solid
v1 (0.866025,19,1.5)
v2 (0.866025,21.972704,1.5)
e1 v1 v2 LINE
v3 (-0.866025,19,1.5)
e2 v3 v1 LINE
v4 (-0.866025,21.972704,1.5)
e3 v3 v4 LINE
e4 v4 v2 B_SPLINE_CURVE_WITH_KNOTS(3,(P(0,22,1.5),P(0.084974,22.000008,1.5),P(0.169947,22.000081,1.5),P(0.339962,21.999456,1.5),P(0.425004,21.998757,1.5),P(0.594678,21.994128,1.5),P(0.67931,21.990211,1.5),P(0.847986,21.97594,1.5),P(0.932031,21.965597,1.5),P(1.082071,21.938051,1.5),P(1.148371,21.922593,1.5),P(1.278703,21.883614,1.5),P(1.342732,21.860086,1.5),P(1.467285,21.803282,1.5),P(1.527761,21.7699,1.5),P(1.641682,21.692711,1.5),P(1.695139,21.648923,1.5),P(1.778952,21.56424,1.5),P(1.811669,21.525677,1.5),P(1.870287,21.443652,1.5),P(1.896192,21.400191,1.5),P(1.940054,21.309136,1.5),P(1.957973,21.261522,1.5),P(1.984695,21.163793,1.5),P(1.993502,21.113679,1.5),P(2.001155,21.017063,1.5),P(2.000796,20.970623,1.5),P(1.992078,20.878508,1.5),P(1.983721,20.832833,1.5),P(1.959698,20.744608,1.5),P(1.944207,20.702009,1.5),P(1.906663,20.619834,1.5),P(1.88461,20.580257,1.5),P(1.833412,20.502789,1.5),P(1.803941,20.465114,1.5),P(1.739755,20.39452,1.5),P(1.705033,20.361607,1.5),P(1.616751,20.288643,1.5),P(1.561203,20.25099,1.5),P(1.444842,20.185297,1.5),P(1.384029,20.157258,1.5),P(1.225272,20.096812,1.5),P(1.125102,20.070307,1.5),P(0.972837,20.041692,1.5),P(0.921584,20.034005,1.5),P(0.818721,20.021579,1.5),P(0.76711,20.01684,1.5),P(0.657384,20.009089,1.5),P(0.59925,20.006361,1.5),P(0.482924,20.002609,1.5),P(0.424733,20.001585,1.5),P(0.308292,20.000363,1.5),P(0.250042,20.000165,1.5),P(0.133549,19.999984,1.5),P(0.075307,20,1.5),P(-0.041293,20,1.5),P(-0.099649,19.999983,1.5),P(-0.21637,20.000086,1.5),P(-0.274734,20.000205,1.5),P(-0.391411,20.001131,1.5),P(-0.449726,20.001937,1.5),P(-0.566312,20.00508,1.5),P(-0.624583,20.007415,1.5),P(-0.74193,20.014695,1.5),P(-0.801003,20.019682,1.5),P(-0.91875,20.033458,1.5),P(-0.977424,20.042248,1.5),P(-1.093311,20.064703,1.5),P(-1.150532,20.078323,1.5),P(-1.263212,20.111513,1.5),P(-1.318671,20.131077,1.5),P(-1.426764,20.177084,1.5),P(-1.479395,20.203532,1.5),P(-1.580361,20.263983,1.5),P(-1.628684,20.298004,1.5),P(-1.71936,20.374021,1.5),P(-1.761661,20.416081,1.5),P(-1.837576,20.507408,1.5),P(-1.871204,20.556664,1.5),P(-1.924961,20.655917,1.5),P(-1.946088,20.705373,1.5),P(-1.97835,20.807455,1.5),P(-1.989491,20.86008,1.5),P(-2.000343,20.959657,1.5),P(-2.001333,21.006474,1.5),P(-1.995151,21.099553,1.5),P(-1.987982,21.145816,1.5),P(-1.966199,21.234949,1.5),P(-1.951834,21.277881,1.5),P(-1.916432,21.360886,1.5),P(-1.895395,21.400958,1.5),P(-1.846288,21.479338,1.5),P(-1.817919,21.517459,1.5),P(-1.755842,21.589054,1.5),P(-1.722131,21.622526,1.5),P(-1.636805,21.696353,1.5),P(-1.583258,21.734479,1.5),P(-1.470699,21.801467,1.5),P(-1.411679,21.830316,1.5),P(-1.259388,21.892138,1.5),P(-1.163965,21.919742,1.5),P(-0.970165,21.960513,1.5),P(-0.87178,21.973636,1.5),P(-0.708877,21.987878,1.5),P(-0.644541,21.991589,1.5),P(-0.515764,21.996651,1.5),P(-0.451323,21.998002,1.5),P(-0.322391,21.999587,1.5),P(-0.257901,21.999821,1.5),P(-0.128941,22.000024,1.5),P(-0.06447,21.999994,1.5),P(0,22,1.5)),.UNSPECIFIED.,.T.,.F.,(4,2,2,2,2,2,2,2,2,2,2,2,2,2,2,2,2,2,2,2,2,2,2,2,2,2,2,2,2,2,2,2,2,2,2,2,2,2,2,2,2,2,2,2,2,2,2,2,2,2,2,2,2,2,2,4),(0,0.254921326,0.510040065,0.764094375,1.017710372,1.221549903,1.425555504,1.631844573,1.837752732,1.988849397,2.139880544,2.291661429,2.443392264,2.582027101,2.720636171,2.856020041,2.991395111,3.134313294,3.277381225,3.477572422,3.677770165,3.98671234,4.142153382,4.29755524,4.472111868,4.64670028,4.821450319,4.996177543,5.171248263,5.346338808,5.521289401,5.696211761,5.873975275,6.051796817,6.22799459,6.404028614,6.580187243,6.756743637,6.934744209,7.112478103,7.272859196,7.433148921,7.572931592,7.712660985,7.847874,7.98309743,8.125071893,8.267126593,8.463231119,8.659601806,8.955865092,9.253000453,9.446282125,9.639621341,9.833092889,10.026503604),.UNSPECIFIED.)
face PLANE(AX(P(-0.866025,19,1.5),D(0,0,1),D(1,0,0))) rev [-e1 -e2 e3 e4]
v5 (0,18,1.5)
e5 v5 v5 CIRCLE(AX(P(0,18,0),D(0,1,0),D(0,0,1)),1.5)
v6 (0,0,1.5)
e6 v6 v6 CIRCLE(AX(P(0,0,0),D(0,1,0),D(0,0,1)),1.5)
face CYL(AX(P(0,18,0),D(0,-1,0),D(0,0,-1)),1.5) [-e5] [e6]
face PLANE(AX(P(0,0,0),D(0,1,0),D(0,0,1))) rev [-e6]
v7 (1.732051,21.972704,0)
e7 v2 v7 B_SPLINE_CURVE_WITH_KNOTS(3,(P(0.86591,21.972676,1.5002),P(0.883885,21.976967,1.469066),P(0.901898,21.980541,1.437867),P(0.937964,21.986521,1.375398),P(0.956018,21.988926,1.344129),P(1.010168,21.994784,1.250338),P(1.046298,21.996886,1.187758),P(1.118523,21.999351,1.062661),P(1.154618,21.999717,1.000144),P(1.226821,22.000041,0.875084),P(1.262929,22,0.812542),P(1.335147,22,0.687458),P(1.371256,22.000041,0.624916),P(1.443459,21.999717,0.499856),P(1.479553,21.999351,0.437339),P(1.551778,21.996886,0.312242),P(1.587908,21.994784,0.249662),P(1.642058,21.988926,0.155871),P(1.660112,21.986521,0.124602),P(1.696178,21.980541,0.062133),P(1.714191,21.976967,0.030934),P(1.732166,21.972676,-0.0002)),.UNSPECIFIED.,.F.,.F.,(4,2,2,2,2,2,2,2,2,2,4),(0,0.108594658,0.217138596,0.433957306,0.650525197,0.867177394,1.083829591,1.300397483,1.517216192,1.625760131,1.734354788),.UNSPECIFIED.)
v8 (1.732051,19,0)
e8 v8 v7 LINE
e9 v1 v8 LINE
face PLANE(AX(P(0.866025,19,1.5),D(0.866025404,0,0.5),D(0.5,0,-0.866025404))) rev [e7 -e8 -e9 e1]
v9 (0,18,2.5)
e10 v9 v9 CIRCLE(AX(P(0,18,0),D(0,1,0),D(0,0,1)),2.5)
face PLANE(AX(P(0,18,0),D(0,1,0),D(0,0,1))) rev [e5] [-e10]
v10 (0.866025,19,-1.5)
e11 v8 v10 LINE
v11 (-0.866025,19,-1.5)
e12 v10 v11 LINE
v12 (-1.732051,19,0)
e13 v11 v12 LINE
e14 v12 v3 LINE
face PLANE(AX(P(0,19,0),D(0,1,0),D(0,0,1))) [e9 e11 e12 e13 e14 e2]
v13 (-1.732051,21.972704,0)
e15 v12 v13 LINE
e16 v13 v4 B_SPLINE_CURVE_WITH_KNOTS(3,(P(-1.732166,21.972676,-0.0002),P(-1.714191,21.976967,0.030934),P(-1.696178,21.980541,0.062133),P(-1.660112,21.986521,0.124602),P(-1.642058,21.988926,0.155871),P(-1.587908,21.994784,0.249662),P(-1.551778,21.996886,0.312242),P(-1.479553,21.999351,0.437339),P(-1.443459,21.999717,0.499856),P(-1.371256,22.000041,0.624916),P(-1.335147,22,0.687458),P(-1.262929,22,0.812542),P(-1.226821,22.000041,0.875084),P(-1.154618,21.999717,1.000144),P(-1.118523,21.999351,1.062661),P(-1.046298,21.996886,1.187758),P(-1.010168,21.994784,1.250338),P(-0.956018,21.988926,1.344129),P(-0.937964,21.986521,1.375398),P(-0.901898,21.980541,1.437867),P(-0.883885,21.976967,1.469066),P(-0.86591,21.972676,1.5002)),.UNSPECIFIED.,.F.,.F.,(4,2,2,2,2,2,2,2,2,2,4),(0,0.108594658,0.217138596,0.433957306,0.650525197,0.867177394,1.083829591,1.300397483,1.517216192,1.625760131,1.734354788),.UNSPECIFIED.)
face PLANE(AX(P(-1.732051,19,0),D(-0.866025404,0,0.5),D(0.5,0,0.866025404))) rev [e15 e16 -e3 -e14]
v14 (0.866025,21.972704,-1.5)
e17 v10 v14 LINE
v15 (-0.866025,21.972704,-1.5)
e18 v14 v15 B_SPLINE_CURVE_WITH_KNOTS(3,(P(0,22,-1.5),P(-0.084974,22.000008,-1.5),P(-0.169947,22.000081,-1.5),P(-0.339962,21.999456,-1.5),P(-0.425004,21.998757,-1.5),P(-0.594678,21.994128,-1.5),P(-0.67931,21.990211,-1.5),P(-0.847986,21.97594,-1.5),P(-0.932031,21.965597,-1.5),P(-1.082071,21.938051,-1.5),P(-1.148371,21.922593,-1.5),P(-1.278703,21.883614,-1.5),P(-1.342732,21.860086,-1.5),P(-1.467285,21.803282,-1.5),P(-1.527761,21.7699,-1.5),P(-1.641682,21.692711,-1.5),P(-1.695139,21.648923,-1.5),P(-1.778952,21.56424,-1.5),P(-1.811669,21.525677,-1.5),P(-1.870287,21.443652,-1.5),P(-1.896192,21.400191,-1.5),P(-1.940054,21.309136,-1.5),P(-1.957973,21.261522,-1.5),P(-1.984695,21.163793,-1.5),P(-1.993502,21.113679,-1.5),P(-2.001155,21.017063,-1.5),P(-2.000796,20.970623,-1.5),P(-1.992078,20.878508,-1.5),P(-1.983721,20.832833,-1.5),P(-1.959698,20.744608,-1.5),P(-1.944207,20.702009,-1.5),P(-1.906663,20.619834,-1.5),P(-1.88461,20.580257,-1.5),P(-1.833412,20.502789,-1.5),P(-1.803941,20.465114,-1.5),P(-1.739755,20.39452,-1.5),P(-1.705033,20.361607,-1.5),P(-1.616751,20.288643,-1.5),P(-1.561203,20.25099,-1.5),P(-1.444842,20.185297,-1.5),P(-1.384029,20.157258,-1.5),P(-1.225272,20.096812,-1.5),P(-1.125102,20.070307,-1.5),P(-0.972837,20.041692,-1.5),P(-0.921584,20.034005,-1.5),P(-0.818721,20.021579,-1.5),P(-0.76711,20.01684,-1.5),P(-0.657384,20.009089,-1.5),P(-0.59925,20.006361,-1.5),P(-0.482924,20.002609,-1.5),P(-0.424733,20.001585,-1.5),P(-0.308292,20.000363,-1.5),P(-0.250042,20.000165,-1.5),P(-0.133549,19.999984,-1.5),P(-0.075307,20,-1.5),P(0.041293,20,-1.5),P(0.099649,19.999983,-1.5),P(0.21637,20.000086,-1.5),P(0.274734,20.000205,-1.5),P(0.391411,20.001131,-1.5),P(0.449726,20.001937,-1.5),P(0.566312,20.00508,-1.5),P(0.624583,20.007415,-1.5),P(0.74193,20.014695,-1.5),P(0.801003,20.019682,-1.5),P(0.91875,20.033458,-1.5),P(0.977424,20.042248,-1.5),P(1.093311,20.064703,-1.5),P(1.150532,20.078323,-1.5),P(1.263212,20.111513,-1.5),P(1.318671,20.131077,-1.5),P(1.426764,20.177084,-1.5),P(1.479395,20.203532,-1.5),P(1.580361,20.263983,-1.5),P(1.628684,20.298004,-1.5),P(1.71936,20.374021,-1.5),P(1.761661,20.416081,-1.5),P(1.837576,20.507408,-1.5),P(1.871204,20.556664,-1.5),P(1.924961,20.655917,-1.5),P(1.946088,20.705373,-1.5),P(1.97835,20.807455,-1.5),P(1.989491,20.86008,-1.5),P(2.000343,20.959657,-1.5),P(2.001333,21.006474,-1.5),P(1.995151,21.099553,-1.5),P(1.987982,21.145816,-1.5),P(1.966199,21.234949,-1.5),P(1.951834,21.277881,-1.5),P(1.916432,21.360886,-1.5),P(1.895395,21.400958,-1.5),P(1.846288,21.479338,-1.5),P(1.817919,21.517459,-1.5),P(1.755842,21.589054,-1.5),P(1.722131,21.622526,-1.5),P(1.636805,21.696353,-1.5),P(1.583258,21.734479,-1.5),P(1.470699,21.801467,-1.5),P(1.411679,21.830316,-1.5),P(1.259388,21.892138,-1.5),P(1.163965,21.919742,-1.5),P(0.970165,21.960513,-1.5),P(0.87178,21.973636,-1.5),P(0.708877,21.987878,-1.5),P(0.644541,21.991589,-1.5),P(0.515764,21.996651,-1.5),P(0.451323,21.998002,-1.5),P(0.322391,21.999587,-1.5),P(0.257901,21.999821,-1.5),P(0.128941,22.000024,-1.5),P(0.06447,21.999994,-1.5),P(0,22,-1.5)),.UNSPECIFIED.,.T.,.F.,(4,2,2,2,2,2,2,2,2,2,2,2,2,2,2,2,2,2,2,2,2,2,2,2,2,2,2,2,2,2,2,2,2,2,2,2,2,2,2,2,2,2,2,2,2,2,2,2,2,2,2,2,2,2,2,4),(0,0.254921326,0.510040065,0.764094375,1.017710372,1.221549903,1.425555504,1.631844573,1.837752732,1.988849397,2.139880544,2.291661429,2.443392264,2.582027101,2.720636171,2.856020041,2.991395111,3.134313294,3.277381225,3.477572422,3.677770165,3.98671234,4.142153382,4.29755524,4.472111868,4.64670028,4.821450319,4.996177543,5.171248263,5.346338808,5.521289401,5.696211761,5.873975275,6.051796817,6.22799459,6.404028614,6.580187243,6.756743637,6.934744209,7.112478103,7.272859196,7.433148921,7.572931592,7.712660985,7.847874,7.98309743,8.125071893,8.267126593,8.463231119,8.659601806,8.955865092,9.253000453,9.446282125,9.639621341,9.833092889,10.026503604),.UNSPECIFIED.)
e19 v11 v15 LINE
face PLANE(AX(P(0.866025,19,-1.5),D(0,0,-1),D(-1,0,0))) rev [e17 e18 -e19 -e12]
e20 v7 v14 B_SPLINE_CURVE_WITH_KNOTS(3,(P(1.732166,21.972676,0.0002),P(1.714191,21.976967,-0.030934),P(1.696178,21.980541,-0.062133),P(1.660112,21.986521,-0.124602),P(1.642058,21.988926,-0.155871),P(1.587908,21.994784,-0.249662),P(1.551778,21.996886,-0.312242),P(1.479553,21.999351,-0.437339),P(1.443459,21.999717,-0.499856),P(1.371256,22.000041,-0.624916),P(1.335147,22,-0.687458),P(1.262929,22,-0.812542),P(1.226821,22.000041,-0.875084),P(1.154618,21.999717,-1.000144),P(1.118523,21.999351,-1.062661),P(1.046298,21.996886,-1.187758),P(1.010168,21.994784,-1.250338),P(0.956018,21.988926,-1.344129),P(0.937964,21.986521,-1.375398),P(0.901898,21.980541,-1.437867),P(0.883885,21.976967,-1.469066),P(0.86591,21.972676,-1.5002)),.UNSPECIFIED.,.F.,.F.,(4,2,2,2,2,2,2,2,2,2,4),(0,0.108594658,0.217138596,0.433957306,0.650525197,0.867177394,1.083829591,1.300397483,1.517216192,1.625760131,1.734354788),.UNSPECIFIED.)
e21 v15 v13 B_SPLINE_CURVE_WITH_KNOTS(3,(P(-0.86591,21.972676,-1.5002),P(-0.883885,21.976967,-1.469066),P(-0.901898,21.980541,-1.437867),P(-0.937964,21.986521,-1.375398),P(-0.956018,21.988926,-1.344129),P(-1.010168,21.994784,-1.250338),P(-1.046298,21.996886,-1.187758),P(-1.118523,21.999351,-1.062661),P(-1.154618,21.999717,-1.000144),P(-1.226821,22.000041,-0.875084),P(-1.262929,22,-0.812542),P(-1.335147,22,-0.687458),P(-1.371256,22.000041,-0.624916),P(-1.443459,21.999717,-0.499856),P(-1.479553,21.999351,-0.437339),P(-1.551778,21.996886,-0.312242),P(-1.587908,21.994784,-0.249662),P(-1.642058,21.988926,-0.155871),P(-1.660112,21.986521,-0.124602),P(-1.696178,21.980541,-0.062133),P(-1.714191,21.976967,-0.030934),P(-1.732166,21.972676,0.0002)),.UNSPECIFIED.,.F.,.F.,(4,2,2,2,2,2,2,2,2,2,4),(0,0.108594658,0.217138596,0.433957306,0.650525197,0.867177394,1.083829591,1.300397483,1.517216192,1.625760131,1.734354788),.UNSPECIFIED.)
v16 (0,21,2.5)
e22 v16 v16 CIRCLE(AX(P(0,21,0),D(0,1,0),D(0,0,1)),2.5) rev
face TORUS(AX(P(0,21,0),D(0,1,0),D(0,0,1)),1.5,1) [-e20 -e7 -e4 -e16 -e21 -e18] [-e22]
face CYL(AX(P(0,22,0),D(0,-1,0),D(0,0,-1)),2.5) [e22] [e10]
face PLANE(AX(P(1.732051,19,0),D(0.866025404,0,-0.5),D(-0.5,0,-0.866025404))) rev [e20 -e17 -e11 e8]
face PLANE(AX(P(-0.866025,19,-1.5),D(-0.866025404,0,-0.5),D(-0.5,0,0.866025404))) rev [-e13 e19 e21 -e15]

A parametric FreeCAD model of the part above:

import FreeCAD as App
import Part
import Sketcher
Q = App.Units.Quantity


def edges_at(feature, points):
    """Names of the edges that pass closest to the given points."""
    edges = feature.Shape.Edges
    near = lambda p: min(range(len(edges)), key=lambda i: edges[i].distToShape(Part.Vertex(*p))[0])
    return sorted({f"Edge{near(p) + 1}" for p in points})

doc = App.newDocument("Part")
params = doc.addObject("Spreadsheet::Sheet", "Params")
for row, (alias, value) in enumerate([
    ("sketch1_diameter", "3 mm"),
    ("pad1_length", "18 mm"),
    ("sketch2_diameter", "5 mm"),
    ("pad2_length", "4 mm"),
    ("fillet_radius", "1 mm"),
    ("pocket1_length", "3 mm"),
], start=1):
    params.set(f"A{row}", alias)
    params.set(f"B{row}", "=" + value)
    params.setAlias(f"B{row}", alias)

body = doc.addObject("PartDesign::Body", "Body")

sketch1 = doc.addObject("Sketcher::SketchObject", "Sketch")
body.addObject(sketch1)
sketch1.AttachmentSupport = (doc.XZ_Plane, [""])
sketch1.MapMode = "FlatFace"
sketch1.addGeometry(Part.Circle(App.Vector(0, 0, 0), App.Vector(0, 0, 1), 1.5), False)
sketch1.addConstraint(Sketcher.Constraint("Coincident", 0, 3, -1, 1))
sketch1.addConstraint(Sketcher.Constraint("Diameter", 0, Q("3 mm")))
sketch1.setExpression("Constraints[1]", "Params.sketch1_diameter")
pad1 = doc.addObject("PartDesign::Pad", "Pad")
body.addObject(pad1)
pad1.Profile = sketch1
pad1.setExpression("Length", "Params.pad1_length")
pad1.Reversed = True

sketch2 = doc.addObject("Sketcher::SketchObject", "Sketch001")
body.addObject(sketch2)
sketch2.AttachmentSupport = (doc.XZ_Plane, [""])
sketch2.MapMode = "FlatFace"
sketch2.AttachmentOffset = App.Placement(App.Vector(0, 0, -18), App.Rotation())
sketch2.addGeometry(Part.Circle(App.Vector(0, 0, 0), App.Vector(0, 0, 1), 2.5), False)
sketch2.addConstraint(Sketcher.Constraint("Coincident", 0, 3, -1, 1))
sketch2.addConstraint(Sketcher.Constraint("Diameter", 0, Q("5 mm")))
sketch2.setExpression("Constraints[1]", "Params.sketch2_diameter")
pad2 = doc.addObject("PartDesign::Pad", "Pad001")
body.addObject(pad2)
pad2.Profile = sketch2
pad2.setExpression("Length", "Params.pad2_length")
pad2.Reversed = True
doc.recompute()

fillet = doc.addObject("PartDesign::Fillet", "Fillet")
body.addObject(fillet)
fillet.Base = (pad2, edges_at(pad2, [(0, 22, -2.5)]))
fillet.setExpression("Radius", "Params.fillet_radius")

sketch3 = doc.addObject("Sketcher::SketchObject", "Sketch002")
body.addObject(sketch3)
sketch3.AttachmentSupport = (doc.XZ_Plane, [""])
sketch3.MapMode = "FlatFace"
sketch3.AttachmentOffset = App.Placement(App.Vector(0, 0, -22), App.Rotation())
sketch3.addGeometry(Part.LineSegment(App.Vector(1.732051, 0, 0), App.Vector(0.866025, -1.5, 0)), False)
sketch3.addGeometry(Part.LineSegment(App.Vector(0.866025, -1.5, 0), App.Vector(-0.866025, -1.5, 0)), False)
sketch3.addGeometry(Part.LineSegment(App.Vector(-0.866025, -1.5, 0), App.Vector(-1.732051, 0, 0)), False)
sketch3.addGeometry(Part.LineSegment(App.Vector(-1.732051, 0, 0), App.Vector(-0.866025, 1.5, 0)), False)
sketch3.addGeometry(Part.LineSegment(App.Vector(-0.866025, 1.5, 0), App.Vector(0.866025, 1.5, 0)), False)
sketch3.addGeometry(Part.LineSegment(App.Vector(0.866025, 1.5, 0), App.Vector(1.732051, 0, 0)), False)
sketch3.addConstraint(Sketcher.Constraint("Coincident", 0, 2, 1, 1))
sketch3.addConstraint(Sketcher.Constraint("Coincident", 1, 2, 2, 1))
sketch3.addConstraint(Sketcher.Constraint("Coincident", 2, 2, 3, 1))
sketch3.addConstraint(Sketcher.Constraint("Coincident", 3, 2, 4, 1))
sketch3.addConstraint(Sketcher.Constraint("Coincident", 4, 2, 5, 1))
sketch3.addConstraint(Sketcher.Constraint("Coincident", 5, 2, 0, 1))
sketch3.addConstraint(Sketcher.Constraint("Horizontal", 1))
sketch3.addConstraint(Sketcher.Constraint("Horizontal", 4))
sketch3.addConstraint(Sketcher.Constraint("Symmetric", 0, 2, 3, 2, -1, 1))
sketch3.addConstraint(Sketcher.Constraint("Symmetric", 2, 2, 5, 2, -1, 1))
sketch3.addConstraint(Sketcher.Constraint("PointOnObject", 2, 2, -1))
sketch3.addConstraint(Sketcher.Constraint("Parallel", 2, 5))
sketch3.addConstraint(Sketcher.Constraint("Vertical", 1, 2, 3, 2))
sketch3.addConstraint(Sketcher.Constraint("Angle", 0, Q("-120 deg")))
sketch3.addConstraint(Sketcher.Constraint("DistanceY", 1, 2, 3, 2, Q("3 mm")))
sketch3.addConstraint(Sketcher.Constraint("DistanceX", 1, 2, 1, 1, Q("1.732051 mm")))
pocket1 = doc.addObject("PartDesign::Pocket", "Pocket")
body.addObject(pocket1)
pocket1.Profile = sketch3
pocket1.setExpression("Length", "Params.pocket1_length")
pocket1.Reversed = True

doc.recompute()
